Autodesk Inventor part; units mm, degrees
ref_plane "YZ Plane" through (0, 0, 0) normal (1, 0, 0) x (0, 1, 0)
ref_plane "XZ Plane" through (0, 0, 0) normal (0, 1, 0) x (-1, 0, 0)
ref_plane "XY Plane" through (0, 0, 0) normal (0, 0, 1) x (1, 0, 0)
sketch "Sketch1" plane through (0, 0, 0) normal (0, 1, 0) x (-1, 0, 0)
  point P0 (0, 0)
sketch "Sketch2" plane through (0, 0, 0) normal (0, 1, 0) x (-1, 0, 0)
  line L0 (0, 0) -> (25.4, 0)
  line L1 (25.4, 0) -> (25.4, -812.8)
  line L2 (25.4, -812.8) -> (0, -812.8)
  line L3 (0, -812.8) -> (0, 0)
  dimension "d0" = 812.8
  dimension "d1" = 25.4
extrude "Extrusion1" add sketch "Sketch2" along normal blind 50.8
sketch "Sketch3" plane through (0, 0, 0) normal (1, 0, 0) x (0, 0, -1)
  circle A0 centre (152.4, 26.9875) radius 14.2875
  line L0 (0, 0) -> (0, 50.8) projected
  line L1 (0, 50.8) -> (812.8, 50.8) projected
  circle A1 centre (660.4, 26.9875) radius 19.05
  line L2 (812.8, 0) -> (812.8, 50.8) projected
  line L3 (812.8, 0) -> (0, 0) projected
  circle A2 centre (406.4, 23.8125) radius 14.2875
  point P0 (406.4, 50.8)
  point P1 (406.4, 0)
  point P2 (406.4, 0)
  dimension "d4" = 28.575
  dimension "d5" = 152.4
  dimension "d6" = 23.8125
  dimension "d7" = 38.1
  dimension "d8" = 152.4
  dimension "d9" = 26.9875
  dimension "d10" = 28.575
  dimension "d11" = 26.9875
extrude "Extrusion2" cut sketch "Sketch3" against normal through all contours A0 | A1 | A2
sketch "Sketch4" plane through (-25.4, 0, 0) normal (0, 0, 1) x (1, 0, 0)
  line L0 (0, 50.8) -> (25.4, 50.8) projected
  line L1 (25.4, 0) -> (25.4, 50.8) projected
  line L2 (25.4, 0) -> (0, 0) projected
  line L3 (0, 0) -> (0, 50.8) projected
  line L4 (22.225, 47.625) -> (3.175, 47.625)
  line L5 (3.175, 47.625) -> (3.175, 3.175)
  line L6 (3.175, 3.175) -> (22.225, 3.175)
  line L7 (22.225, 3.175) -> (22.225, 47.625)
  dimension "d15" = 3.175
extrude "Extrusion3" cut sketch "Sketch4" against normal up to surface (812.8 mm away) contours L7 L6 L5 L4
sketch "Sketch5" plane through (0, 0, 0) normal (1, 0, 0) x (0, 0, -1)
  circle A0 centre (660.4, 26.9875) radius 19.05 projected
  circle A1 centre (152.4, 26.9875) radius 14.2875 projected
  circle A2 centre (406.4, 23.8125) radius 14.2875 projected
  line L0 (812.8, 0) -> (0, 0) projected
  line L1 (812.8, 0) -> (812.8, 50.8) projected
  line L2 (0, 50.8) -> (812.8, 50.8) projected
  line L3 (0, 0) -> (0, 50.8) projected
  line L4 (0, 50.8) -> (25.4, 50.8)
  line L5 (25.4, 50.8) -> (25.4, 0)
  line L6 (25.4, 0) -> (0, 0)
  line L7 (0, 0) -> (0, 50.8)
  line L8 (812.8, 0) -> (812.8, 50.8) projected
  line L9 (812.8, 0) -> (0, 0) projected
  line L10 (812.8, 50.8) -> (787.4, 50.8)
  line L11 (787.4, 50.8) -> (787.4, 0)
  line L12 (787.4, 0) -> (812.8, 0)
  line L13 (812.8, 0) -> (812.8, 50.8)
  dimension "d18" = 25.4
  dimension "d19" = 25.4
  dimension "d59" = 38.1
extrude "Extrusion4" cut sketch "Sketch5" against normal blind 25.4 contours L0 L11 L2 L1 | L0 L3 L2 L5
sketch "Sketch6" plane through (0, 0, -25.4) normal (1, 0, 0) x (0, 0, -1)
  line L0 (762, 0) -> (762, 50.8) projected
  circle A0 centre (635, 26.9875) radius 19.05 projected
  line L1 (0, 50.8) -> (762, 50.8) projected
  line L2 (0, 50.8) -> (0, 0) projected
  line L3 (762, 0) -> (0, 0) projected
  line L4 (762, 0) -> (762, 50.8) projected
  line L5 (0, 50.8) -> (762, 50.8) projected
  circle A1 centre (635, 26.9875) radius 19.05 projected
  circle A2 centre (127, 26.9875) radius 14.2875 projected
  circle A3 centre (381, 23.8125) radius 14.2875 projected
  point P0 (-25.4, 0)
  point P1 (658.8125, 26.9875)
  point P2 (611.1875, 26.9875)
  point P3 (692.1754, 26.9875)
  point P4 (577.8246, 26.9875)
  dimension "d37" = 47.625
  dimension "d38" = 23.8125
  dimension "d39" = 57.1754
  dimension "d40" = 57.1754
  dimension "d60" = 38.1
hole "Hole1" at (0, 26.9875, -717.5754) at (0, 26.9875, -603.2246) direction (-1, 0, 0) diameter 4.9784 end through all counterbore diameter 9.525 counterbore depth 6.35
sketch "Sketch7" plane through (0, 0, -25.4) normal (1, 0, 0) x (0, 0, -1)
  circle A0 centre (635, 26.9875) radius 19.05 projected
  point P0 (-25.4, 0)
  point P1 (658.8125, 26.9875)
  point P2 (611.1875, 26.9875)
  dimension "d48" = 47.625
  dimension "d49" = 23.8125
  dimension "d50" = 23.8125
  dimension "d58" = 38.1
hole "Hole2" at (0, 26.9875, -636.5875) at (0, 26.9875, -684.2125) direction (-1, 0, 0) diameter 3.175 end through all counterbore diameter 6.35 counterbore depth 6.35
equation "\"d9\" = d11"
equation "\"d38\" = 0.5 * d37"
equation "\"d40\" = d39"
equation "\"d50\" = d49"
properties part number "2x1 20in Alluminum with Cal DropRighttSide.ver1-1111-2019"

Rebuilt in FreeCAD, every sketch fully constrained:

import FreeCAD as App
import Part
import Sketcher

V = App.Vector
Q = App.Units.Quantity


def add_polygon(sketch, points):
    """Adds a closed chain of lines whose ends are joined by coincident constraints."""
    first, n = sketch.GeometryCount, len(points)
    for a, b in zip(points, points[1:] + points[:1]):
        sketch.addGeometry(Part.LineSegment(App.Vector(*a, 0), App.Vector(*b, 0)), False)
    for i in range(n):
        sketch.addConstraint(Sketcher.Constraint("Coincident", first + i, 2, first + (i + 1) % n, 1))

doc = App.newDocument("Part")
body = doc.addObject("PartDesign::Body", "Body")

sketch1 = body.newObject("Sketcher::SketchObject", "Sketch")
sketch1.AttachmentSupport = (doc.getObject("XZ_Plane"), [""])
sketch1.MapMode = "FlatFace"
add_polygon(sketch1, [(-25, 0), (0, 0), (0, -813), (-25, -813)])
sketch1.addConstraint([
    Sketcher.Constraint("Horizontal", 0),
    Sketcher.Constraint("Vertical", 1),
    Sketcher.Constraint("Horizontal", 2),
    Sketcher.Constraint("Vertical", 3),
    Sketcher.Constraint("Coincident", 0, 2, -1, 1),
    Sketcher.Constraint("DistanceX", 0, 1, 0, 2, Q("1 in")),
    Sketcher.Constraint("DistanceY", 1, 2, 1, 1, Q("32 in")),
])
pad1 = body.newObject("PartDesign::Pad", "Pad")
pad1.Profile = sketch1
pad1.Length = Q("2 in")
pad1.Reversed = True

sketch2 = body.newObject("Sketcher::SketchObject", "Sketch001")
sketch2.AttachmentSupport = (doc.getObject("YZ_Plane"), [""])
sketch2.MapMode = "FlatFace"
sketch2.addGeometry([
    Part.Circle(V(27, -152, 0), V(0, 0, 1), 14),
    Part.Circle(V(27, -660, 0), V(0, 0, 1), 19),
    Part.Circle(V(24, -406, 0), V(0, 0, 1), 14),
], False)
sketch2.addConstraint([
    Sketcher.Constraint("Equal", 0, 2),
    Sketcher.Constraint("Vertical", 0, 3, 1, 3),
    Sketcher.Constraint("Diameter", 1, Q("1.5 in")),
    Sketcher.Constraint("Diameter", 0, Q("1.125 in")),
    Sketcher.Constraint("DistanceY", 0, 3, -1, 1, Q("6 in")),
    Sketcher.Constraint("DistanceX", -1, 1, 0, 3, Q("1.0625 in")),
    Sketcher.Constraint("DistanceY", 1, 3, -1, 1, Q("26 in")),
    Sketcher.Constraint("DistanceX", -1, 1, 2, 3, Q("0.9375 in")),
    Sketcher.Constraint("DistanceY", 2, 3, -1, 1, Q("16 in")),
])
pocket1 = body.newObject("PartDesign::Pocket", "Pocket")
pocket1.Profile = sketch2
pocket1.Type = "ThroughAll"

sketch3 = body.newObject("Sketcher::SketchObject", "Sketch002")
sketch3.AttachmentSupport = (doc.getObject("XY_Plane"), [""])
sketch3.MapMode = "FlatFace"
add_polygon(sketch3, [(-3, 3), (-3, 48), (-22, 48), (-22, 3)])
sketch3.addConstraint([
    Sketcher.Constraint("Vertical", 0),
    Sketcher.Constraint("Horizontal", 1),
    Sketcher.Constraint("Vertical", 2),
    Sketcher.Constraint("Horizontal", 3),
    Sketcher.Constraint("DistanceX", 0, 2, -1, 1, Q("0.125 in")),
    Sketcher.Constraint("DistanceY", -1, 1, 2, 2, Q("0.125 in")),
    Sketcher.Constraint("DistanceX", 1, 2, 1, 1, Q("0.75 in")),
    Sketcher.Constraint("DistanceY", 0, 1, 0, 2, Q("1.75 in")),
])
pocket2 = body.newObject("PartDesign::Pocket", "Pocket001")
pocket2.Profile = sketch3
pocket2.Length = Q("32 in")

sketch4 = body.newObject("Sketcher::SketchObject", "Sketch003")
sketch4.AttachmentSupport = (doc.getObject("YZ_Plane"), [""])
sketch4.MapMode = "FlatFace"
add_polygon(sketch4, [(0, -787), (0, -813), (51, -813), (51, -787)])
add_polygon(sketch4, [(0, 0), (0, -25), (51, -25), (51, 0)])
sketch4.addConstraint([
    Sketcher.Constraint("Vertical", 0),
    Sketcher.Constraint("Horizontal", 1),
    Sketcher.Constraint("Vertical", 2),
    Sketcher.Constraint("Horizontal", 3),
    Sketcher.Constraint("Vertical", 4),
    Sketcher.Constraint("Horizontal", 5),
    Sketcher.Constraint("Vertical", 6),
    Sketcher.Constraint("Horizontal", 7),
    Sketcher.Constraint("Coincident", 7, 2, -1, 1),
    Sketcher.Constraint("PointOnObject", 0, 2, -2),
    Sketcher.Constraint("Vertical", 2, 2, 5, 2),
    Sketcher.Constraint("Equal", 2, 4),
    Sketcher.Constraint("DistanceY", 0, 2, 0, 1, Q("1 in")),
    Sketcher.Constraint("DistanceX", 1, 1, 1, 2, Q("2 in")),
    Sketcher.Constraint("DistanceY", 0, 2, -1, 1, Q("32 in")),
])
pocket3 = body.newObject("PartDesign::Pocket", "Pocket002")
pocket3.Profile = sketch4
pocket3.Length = Q("1 in")

sketch5 = body.newObject("Sketcher::SketchObject", "Sketch004")
sketch5.AttachmentSupport = (doc.getObject("YZ_Plane"), [""])
sketch5.MapMode = "FlatFace"
sketch5.addGeometry([
    Part.Circle(V(27, -717.6, 0), V(0, 0, 1), 2.5),
    Part.Circle(V(27, -603.2, 0), V(0, 0, 1), 2.5),
], False)
sketch5.addConstraint([
    Sketcher.Constraint("Equal", 0, 1),
    Sketcher.Constraint("Vertical", 0, 3, 1, 3),
    Sketcher.Constraint("Diameter", 0, Q("0.196 in")),
    Sketcher.Constraint("DistanceX", -1, 1, 0, 3, Q("1.0625 in")),
    Sketcher.Constraint("DistanceY", 0, 3, -1, 1, Q("28.251 in")),
    Sketcher.Constraint("DistanceY", 1, 3, -1, 1, Q("23.749 in")),
])
doc.recompute()
hole = body.newObject("PartDesign::Hole", "Hole")
hole.Profile = sketch5
hole.ThreadType = "None"
hole.Diameter = Q("0.196 in")
hole.DepthType = "ThroughAll"
hole.HoleCutType = "Counterbore"
hole.HoleCutDiameter = Q("0.375 in")
hole.HoleCutDepth = Q("0.25 in")

sketch6 = body.newObject("Sketcher::SketchObject", "Sketch005")
sketch6.AttachmentSupport = (doc.getObject("YZ_Plane"), [""])
sketch6.MapMode = "FlatFace"
sketch6.addGeometry([
    Part.Circle(V(27, -636.6, 0), V(0, 0, 1), 1.6),
    Part.Circle(V(27, -684.2, 0), V(0, 0, 1), 1.6),
], False)
sketch6.addConstraint([
    Sketcher.Constraint("Equal", 0, 1),
    Sketcher.Constraint("Vertical", 0, 3, 1, 3),
    Sketcher.Constraint("Diameter", 0, Q("0.125 in")),
    Sketcher.Constraint("DistanceX", -1, 1, 0, 3, Q("1.0625 in")),
    Sketcher.Constraint("DistanceY", 0, 3, -1, 1, Q("25.0625 in")),
    Sketcher.Constraint("DistanceY", 1, 3, -1, 1, Q("26.9375 in")),
])
doc.recompute()
hole2 = body.newObject("PartDesign::Hole", "Hole001")
hole2.Profile = sketch6
hole2.ThreadType = "None"
hole2.Diameter = Q("0.125 in")
hole2.DepthType = "ThroughAll"
hole2.HoleCutType = "Counterbore"
hole2.HoleCutDiameter = Q("0.25 in")
hole2.HoleCutDepth = Q("0.25 in")

doc.recompute()
